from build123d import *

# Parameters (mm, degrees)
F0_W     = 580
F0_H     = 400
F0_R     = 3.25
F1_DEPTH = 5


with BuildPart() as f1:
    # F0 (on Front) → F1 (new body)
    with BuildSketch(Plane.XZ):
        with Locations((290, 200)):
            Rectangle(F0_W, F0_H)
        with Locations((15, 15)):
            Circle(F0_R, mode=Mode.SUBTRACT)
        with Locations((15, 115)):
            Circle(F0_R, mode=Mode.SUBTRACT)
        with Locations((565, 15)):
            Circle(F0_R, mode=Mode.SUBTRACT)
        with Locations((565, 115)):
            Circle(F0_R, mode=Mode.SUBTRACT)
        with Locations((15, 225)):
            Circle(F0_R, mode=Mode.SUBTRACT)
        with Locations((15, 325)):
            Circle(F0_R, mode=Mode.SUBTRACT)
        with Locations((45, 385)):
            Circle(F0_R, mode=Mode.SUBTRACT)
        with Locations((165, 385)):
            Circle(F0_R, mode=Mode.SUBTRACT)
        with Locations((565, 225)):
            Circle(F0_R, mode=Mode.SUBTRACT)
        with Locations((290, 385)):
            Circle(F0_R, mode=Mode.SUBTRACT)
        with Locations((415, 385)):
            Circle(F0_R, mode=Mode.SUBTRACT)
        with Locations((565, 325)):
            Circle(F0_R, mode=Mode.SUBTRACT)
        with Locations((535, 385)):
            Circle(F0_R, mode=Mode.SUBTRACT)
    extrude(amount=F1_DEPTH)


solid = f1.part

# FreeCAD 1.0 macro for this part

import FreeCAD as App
import Part
import Sketcher

V = App.Vector

doc = App.newDocument("Part")
body = doc.addObject("PartDesign::Body", "Body")

sketch1 = body.newObject("Sketcher::SketchObject", "Sketch")
sketch1.AttachmentSupport = (doc.getObject("XZ_Plane"), [""])
sketch1.MapMode = "FlatFace"
sketch1.addGeometry(Part.LineSegment(V(0, 400, 0), V(0, 0, 0)), False)
sketch1.addGeometry(Part.LineSegment(V(0, 0, 0), V(580, 0, 0)), False)
sketch1.addGeometry(Part.LineSegment(V(580, 0, 0), V(580, 400, 0)), False)
sketch1.addGeometry(Part.LineSegment(V(580, 400, 0), V(0, 400, 0)), False)
sketch1.addGeometry(Part.Circle(V(15, 15, 0), V(0, 0, 1), 3.25), False)
sketch1.addGeometry(Part.Circle(V(15, 115, 0), V(0, 0, 1), 3.25), False)
sketch1.addGeometry(Part.Circle(V(565, 15, 0), V(0, 0, 1), 3.25), False)
sketch1.addGeometry(Part.Circle(V(565, 115, 0), V(0, 0, 1), 3.25), False)
sketch1.addGeometry(Part.Circle(V(15, 225, 0), V(0, 0, 1), 3.25), False)
sketch1.addGeometry(Part.Circle(V(15, 325, 0), V(0, 0, 1), 3.25), False)
sketch1.addGeometry(Part.Circle(V(45, 385, 0), V(0, 0, 1), 3.25), False)
sketch1.addGeometry(Part.Circle(V(165, 385, 0), V(0, 0, 1), 3.25), False)
sketch1.addGeometry(Part.Circle(V(565, 225, 0), V(0, 0, 1), 3.25), False)
sketch1.addGeometry(Part.Circle(V(290, 385, 0), V(0, 0, 1), 3.25), False)
sketch1.addGeometry(Part.Circle(V(415, 385, 0), V(0, 0, 1), 3.25), False)
sketch1.addGeometry(Part.Circle(V(565, 325, 0), V(0, 0, 1), 3.25), False)
sketch1.addGeometry(Part.Circle(V(535, 385, 0), V(0, 0, 1), 3.25), False)
sketch1.addConstraint(Sketcher.Constraint("Coincident", 0, 2, 1, 1))
sketch1.addConstraint(Sketcher.Constraint("Coincident", 1, 2, 2, 1))
sketch1.addConstraint(Sketcher.Constraint("Coincident", 2, 2, 3, 1))
sketch1.addConstraint(Sketcher.Constraint("Coincident", 3, 2, 0, 1))
sketch1.addConstraint(Sketcher.Constraint("Vertical", 0))
sketch1.addConstraint(Sketcher.Constraint("Horizontal", 1))
sketch1.addConstraint(Sketcher.Constraint("Vertical", 2))
sketch1.addConstraint(Sketcher.Constraint("Horizontal", 3))
sketch1.addConstraint(Sketcher.Constraint("Coincident", 0, 2, -1, 1))
sketch1.addConstraint(Sketcher.Constraint("Equal", 4, 5))
sketch1.addConstraint(Sketcher.Constraint("Equal", 5, 6))
sketch1.addConstraint(Sketcher.Constraint("Equal", 6, 7))
sketch1.addConstraint(Sketcher.Constraint("Equal", 7, 8))
sketch1.addConstraint(Sketcher.Constraint("Equal", 8, 9))
sketch1.addConstraint(Sketcher.Constraint("Equal", 9, 10))
sketch1.addConstraint(Sketcher.Constraint("Equal", 10, 11))
sketch1.addConstraint(Sketcher.Constraint("Equal", 11, 12))
sketch1.addConstraint(Sketcher.Constraint("Equal", 12, 13))
sketch1.addConstraint(Sketcher.Constraint("Equal", 13, 14))
sketch1.addConstraint(Sketcher.Constraint("Equal", 14, 15))
sketch1.addConstraint(Sketcher.Constraint("Equal", 15, 16))
sketch1.addConstraint(Sketcher.Constraint("Horizontal", 4, 3, 6, 3))
sketch1.addConstraint(Sketcher.Constraint("Horizontal", 5, 3, 7, 3))
sketch1.addConstraint(Sketcher.Constraint("Horizontal", 10, 3, 11, 3))
sketch1.addConstraint(Sketcher.Constraint("Horizontal", 8, 3, 12, 3))
sketch1.addConstraint(Sketcher.Constraint("Horizontal", 11, 3, 13, 3))
sketch1.addConstraint(Sketcher.Constraint("Horizontal", 13, 3, 14, 3))
sketch1.addConstraint(Sketcher.Constraint("Horizontal", 9, 3, 15, 3))
sketch1.addConstraint(Sketcher.Constraint("Horizontal", 14, 3, 16, 3))
sketch1.addConstraint(Sketcher.Constraint("Vertical", 4, 3, 5, 3))
sketch1.addConstraint(Sketcher.Constraint("Vertical", 6, 3, 7, 3))
sketch1.addConstraint(Sketcher.Constraint("Vertical", 5, 3, 8, 3))
sketch1.addConstraint(Sketcher.Constraint("Vertical", 8, 3, 9, 3))
sketch1.addConstraint(Sketcher.Constraint("Vertical", 7, 3, 12, 3))
sketch1.addConstraint(Sketcher.Constraint("Vertical", 12, 3, 15, 3))
sketch1.addConstraint(Sketcher.Constraint("Diameter", 4, 6.5))
sketch1.addConstraint(Sketcher.Constraint("DistanceX", 1, 1, 1, 2, 580.0))
sketch1.addConstraint(Sketcher.Constraint("DistanceY", 0, 2, 0, 1, 400.0))
sketch1.addConstraint(Sketcher.Constraint("DistanceX", -1, 1, 4, 3, 15.0))
sketch1.addConstraint(Sketcher.Constraint("DistanceY", -1, 1, 4, 3, 15.0))
sketch1.addConstraint(Sketcher.Constraint("DistanceY", -1, 1, 5, 3, 115.0))
sketch1.addConstraint(Sketcher.Constraint("DistanceX", -1, 1, 6, 3, 565.0))
sketch1.addConstraint(Sketcher.Constraint("DistanceY", -1, 1, 8, 3, 225.0))
sketch1.addConstraint(Sketcher.Constraint("DistanceY", -1, 1, 9, 3, 325.0))
sketch1.addConstraint(Sketcher.Constraint("DistanceX", -1, 1, 10, 3, 45.0))
sketch1.addConstraint(Sketcher.Constraint("DistanceY", -1, 1, 10, 3, 385.0))
sketch1.addConstraint(Sketcher.Constraint("DistanceX", -1, 1, 11, 3, 165.0))
sketch1.addConstraint(Sketcher.Constraint("DistanceX", -1, 1, 13, 3, 290.0))
sketch1.addConstraint(Sketcher.Constraint("DistanceX", -1, 1, 14, 3, 415.0))
sketch1.addConstraint(Sketcher.Constraint("DistanceX", -1, 1, 16, 3, 535.0))
pad1 = body.newObject("PartDesign::Pad", "Pad")
pad1.Profile = sketch1
pad1.Length = 5

doc.recompute()
